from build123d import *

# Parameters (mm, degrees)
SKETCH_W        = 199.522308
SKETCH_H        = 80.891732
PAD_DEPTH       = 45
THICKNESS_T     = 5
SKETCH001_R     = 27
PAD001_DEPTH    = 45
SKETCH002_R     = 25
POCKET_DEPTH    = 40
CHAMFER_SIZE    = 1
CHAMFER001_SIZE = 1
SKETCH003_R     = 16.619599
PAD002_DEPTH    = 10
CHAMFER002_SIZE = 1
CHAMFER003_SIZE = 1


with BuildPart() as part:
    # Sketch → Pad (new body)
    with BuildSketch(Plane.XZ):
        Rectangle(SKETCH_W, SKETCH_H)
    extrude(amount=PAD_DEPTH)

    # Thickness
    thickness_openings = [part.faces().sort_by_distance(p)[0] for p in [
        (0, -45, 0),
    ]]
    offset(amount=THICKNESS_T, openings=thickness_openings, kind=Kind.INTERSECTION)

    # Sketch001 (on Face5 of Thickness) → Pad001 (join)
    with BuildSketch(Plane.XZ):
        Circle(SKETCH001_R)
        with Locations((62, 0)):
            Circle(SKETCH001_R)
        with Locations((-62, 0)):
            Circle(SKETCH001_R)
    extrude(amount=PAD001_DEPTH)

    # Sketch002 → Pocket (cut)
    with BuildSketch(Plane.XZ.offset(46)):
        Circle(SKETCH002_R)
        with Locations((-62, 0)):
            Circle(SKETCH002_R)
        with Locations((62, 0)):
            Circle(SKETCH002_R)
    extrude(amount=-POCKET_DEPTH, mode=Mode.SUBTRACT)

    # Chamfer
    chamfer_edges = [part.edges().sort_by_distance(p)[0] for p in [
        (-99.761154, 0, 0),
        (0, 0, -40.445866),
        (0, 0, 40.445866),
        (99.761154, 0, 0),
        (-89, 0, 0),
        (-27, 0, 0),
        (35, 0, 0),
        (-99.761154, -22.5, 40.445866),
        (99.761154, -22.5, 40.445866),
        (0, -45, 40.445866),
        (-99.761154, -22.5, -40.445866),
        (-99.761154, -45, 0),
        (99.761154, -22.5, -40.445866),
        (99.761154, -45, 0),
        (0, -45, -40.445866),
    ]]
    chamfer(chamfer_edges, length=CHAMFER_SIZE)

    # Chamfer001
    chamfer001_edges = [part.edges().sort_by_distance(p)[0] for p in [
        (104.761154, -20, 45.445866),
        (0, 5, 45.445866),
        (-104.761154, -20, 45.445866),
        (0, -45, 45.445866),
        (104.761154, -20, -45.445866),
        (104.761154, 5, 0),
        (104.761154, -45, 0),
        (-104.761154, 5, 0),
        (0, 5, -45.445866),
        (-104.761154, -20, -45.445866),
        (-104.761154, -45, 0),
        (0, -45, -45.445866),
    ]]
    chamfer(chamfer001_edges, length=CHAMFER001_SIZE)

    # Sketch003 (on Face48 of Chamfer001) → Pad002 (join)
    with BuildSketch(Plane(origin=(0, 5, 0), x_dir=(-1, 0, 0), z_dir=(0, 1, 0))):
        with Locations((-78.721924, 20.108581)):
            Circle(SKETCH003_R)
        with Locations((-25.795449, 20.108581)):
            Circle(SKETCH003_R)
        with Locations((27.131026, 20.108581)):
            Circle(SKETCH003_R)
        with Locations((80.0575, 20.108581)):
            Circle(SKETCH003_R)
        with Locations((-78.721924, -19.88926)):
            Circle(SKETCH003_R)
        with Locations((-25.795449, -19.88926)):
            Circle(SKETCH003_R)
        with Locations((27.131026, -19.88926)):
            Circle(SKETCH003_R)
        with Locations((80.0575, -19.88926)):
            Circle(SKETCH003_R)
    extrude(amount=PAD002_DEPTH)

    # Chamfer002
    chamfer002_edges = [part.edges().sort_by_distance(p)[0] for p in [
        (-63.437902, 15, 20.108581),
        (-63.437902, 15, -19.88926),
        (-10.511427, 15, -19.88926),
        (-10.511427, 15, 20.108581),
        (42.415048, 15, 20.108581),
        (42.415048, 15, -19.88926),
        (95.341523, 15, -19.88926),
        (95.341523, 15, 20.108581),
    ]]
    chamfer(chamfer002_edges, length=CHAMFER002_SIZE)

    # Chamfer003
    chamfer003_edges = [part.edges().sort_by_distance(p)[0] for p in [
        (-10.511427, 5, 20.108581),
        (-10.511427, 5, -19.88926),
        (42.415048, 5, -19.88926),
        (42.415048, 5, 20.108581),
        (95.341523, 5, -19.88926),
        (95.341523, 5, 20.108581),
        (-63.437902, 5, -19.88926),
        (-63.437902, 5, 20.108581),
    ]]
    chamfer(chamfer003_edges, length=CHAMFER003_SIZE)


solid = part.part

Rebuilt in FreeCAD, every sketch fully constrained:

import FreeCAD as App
import Part
import Sketcher
from FreeCAD import Vector
Q = App.Units.Quantity


def edges_at(feature, points):
    """Names of the edges that pass closest to the given points."""
    edges = feature.Shape.Edges
    near = lambda p: min(range(len(edges)), key=lambda i: edges[i].distToShape(Part.Vertex(*p))[0])
    return sorted({f"Edge{near(p) + 1}" for p in points})


def faces_at(feature, points):
    """Names of the faces that lie closest to the given points."""
    faces = feature.Shape.Faces
    near = lambda p: min(range(len(faces)), key=lambda i: faces[i].distToShape(Part.Vertex(*p))[0])
    return sorted({f"Face{near(p) + 1}" for p in points})


def add_polygon(sketch, points):
    """Adds a closed chain of lines whose ends are joined by coincident constraints."""
    first, n = sketch.GeometryCount, len(points)
    for a, b in zip(points, points[1:] + points[:1]):
        sketch.addGeometry(Part.LineSegment(App.Vector(*a, 0), App.Vector(*b, 0)), False)
    for i in range(n):
        sketch.addConstraint(Sketcher.Constraint("Coincident", first + i, 2, first + (i + 1) % n, 1))

doc = App.newDocument("Part")
params = doc.addObject("Spreadsheet::Sheet", "Params")
for row, (alias, value) in enumerate([
    ("pad1_length", "45 mm"),
    ("thickness_wall", "5 mm"),
    ("sketch2_diameter", "54 mm"),
    ("pad2_length", "45 mm"),
    ("sketch3_diameter", "50 mm"),
    ("pocket1_length", "40 mm"),
    ("chamfer_size", "1 mm"),
    ("chamfer2_size", "1 mm"),
    ("pad3_length", "10 mm"),
    ("chamfer3_size", "1 mm"),
    ("chamfer4_size", "1 mm"),
], start=1):
    params.set(f"A{row}", alias)
    params.set(f"B{row}", "=" + value)
    params.setAlias(f"B{row}", alias)

body = doc.addObject("PartDesign::Body", "Body")

# Sketch on XZ plane
sketch1 = body.newObject("Sketcher::SketchObject", "Sketch")
sketch1.AttachmentSupport = (doc.getObject("XZ_Plane"), [""])
sketch1.MapMode = "FlatFace"
add_polygon(sketch1, [(-99.761154, 40.445866), (-99.761154, -40.445866), (99.761154, -40.445866), (99.761154, 40.445866)])  # lines 0-3
sketch1.addConstraint([
    Sketcher.Constraint("Vertical", 0),
    Sketcher.Constraint("Horizontal", 1),
    Sketcher.Constraint("Vertical", 2),
    Sketcher.Constraint("Horizontal", 3),
    Sketcher.Constraint("Symmetric", 0, 2, 2, 2, -1, 1),
    Sketcher.Constraint("DistanceX", 1, 1, 1, 2, Q("199.522308 mm")),
    Sketcher.Constraint("DistanceY", 0, 2, 0, 1, Q("80.891732 mm")),
])
pad1 = body.newObject("PartDesign::Pad", "Pad")
pad1.Profile = sketch1
pad1.setExpression("Length", "Params.pad1_length")
doc.recompute()

thickness = body.newObject("PartDesign::Thickness", "Thickness")
thickness.Base = (pad1, faces_at(pad1, [(0, -45, 0)]))
thickness.setExpression("Value", "Params.thickness_wall")
thickness.Reversed = False
thickness.Join = "Intersection"

# Sketch on XZ plane
sketch2 = body.newObject("Sketcher::SketchObject", "Sketch001")
sketch2.AttachmentSupport = (doc.getObject("XZ_Plane"), [""])
sketch2.MapMode = "FlatFace"
sketch2.addGeometry([
    Part.Circle(Vector(0, 0, 0), Vector(0, 0, 1), 27),
    Part.Circle(Vector(62, 0, 0), Vector(0, 0, 1), 27),
    Part.Circle(Vector(-62, 0, 0), Vector(0, 0, 1), 27),
], False)
sketch2.addConstraint([
    Sketcher.Constraint("Coincident", 0, 3, -1, 1),
    Sketcher.Constraint("Equal", 0, 1),
    Sketcher.Constraint("Equal", 1, 2),
    Sketcher.Constraint("Symmetric", 1, 3, 2, 3, -1, 1),
    Sketcher.Constraint("PointOnObject", 1, 3, -1),
    Sketcher.Constraint("Diameter", 0, Q("54 mm")),
    Sketcher.Constraint("DistanceX", -1, 1, 1, 3, Q("62 mm")),
])
sketch2.setExpression("Constraints[5]", "Params.sketch2_diameter")
pad2 = body.newObject("PartDesign::Pad", "Pad001")
pad2.Profile = sketch2
pad2.setExpression("Length", "Params.pad2_length")

# Sketch on XZ plane
sketch3 = body.newObject("Sketcher::SketchObject", "Sketch002")
sketch3.AttachmentSupport = (doc.getObject("XZ_Plane"), [""])
sketch3.MapMode = "FlatFace"
sketch3.AttachmentOffset = App.Placement(Vector(0, 0, 46), App.Rotation())
sketch3.addGeometry([
    Part.Circle(Vector(0, 0, 0), Vector(0, 0, 1), 25),
    Part.Circle(Vector(-62, 0, 0), Vector(0, 0, 1), 25),
    Part.Circle(Vector(62, 0, 0), Vector(0, 0, 1), 25),
], False)
sketch3.addConstraint([
    Sketcher.Constraint("Coincident", 0, 3, -1, 1),
    Sketcher.Constraint("Equal", 0, 1),
    Sketcher.Constraint("Equal", 1, 2),
    Sketcher.Constraint("Symmetric", 1, 3, 2, 3, -1, 1),
    Sketcher.Constraint("PointOnObject", 1, 3, -1),
    Sketcher.Constraint("Diameter", 0, Q("50 mm")),
    Sketcher.Constraint("DistanceX", 1, 3, -1, 1, Q("62 mm")),
])
sketch3.setExpression("Constraints[5]", "Params.sketch3_diameter")
pocket1 = body.newObject("PartDesign::Pocket", "Pocket")
pocket1.Profile = sketch3
pocket1.setExpression("Length", "Params.pocket1_length")
doc.recompute()

chamfer = body.newObject("PartDesign::Chamfer", "Chamfer")
chamfer.Base = (pocket1, edges_at(pocket1, [
    (-99.761, 0, 0),
    (0, 0, -40.446),
    (0, 0, 40.446),
    (99.761, 0, 0),
    (-89, 0, 0),
    (-27, 0, 0),
    (35, 0, 0),
    (-99.761, -22.5, 40.446),
    (99.761, -22.5, 40.446),
    (0, -45, 40.446),
    (-99.761, -22.5, -40.446),
    (-99.761, -45, 0),
    (99.761, -22.5, -40.446),
    (99.761, -45, 0),
    (0, -45, -40.446),
]))
chamfer.setExpression("Size", "Params.chamfer_size")
doc.recompute()

chamfer2 = body.newObject("PartDesign::Chamfer", "Chamfer001")
chamfer2.Base = (chamfer, edges_at(chamfer, [
    (104.761, -20, 45.446),
    (0, 5, 45.446),
    (-104.761, -20, 45.446),
    (0, -45, 45.446),
    (104.761, -20, -45.446),
    (104.761, 5, 0),
    (104.761, -45, 0),
    (-104.761, 5, 0),
    (0, 5, -45.446),
    (-104.761, -20, -45.446),
    (-104.761, -45, 0),
    (0, -45, -45.446),
]))
chamfer2.setExpression("Size", "Params.chamfer2_size")

# Sketch on XZ plane
sketch4 = body.newObject("Sketcher::SketchObject", "Sketch003")
sketch4.AttachmentSupport = (doc.getObject("XZ_Plane"), [""])
sketch4.MapMode = "FlatFace"
sketch4.AttachmentOffset = App.Placement(Vector(0, 0, -5), App.Rotation())
sketch4.addGeometry([
    Part.Circle(Vector(78.721924, 20.108581, 0), Vector(0, 0, 1), 16.619599),  # 0
    Part.Circle(Vector(25.795449, 20.108581, 0), Vector(0, 0, 1), 16.619599),  # 1
    Part.Circle(Vector(-27.131026, 20.108581, 0), Vector(0, 0, 1), 16.619599),  # 2
    Part.Circle(Vector(-80.0575, 20.108581, 0), Vector(0, 0, 1), 16.619599),  # 3
    Part.Circle(Vector(78.721924, -19.88926, 0), Vector(0, 0, 1), 16.619599),  # 4
    Part.Circle(Vector(25.795449, -19.88926, 0), Vector(0, 0, 1), 16.619599),  # 5
    Part.Circle(Vector(-27.131026, -19.88926, 0), Vector(0, 0, 1), 16.619599),  # 6
    Part.Circle(Vector(-80.0575, -19.88926, 0), Vector(0, 0, 1), 16.619599),  # 7
], False)
sketch4.addConstraint([
    Sketcher.Constraint("Equal", 0, 1),
    Sketcher.Constraint("Equal", 1, 2),
    Sketcher.Constraint("Equal", 2, 3),
    Sketcher.Constraint("Equal", 3, 4),
    Sketcher.Constraint("Equal", 4, 5),
    Sketcher.Constraint("Equal", 5, 6),
    Sketcher.Constraint("Equal", 6, 7),
    Sketcher.Constraint("Horizontal", 0, 3, 1, 3),
    Sketcher.Constraint("Horizontal", 1, 3, 2, 3),
    Sketcher.Constraint("Horizontal", 2, 3, 3, 3),
    Sketcher.Constraint("Horizontal", 4, 3, 5, 3),
    Sketcher.Constraint("Horizontal", 5, 3, 6, 3),
    Sketcher.Constraint("Horizontal", 6, 3, 7, 3),
    Sketcher.Constraint("Vertical", 0, 3, 4, 3),
    Sketcher.Constraint("Vertical", 1, 3, 5, 3),
    Sketcher.Constraint("Vertical", 2, 3, 6, 3),
    Sketcher.Constraint("Vertical", 3, 3, 7, 3),
    Sketcher.Constraint("Diameter", 0, Q("33.239198 mm")),
    Sketcher.Constraint("DistanceX", 3, 3, -1, 1, Q("80.0575 mm")),
    Sketcher.Constraint("DistanceY", -1, 1, 0, 3, Q("20.108581 mm")),
    Sketcher.Constraint("DistanceX", -1, 1, 1, 3, Q("25.795449 mm")),
    Sketcher.Constraint("DistanceY", 4, 3, -1, 1, Q("19.88926 mm")),
    Sketcher.Constraint("DistanceX", 2, 3, 0, 3, Q("105.85295 mm")),
    Sketcher.Constraint("DistanceX", -1, 1, 0, 3, Q("78.721924 mm")),
])
pad3 = body.newObject("PartDesign::Pad", "Pad002")
pad3.Profile = sketch4
pad3.setExpression("Length", "Params.pad3_length")
pad3.Reversed = True
doc.recompute()

chamfer3 = body.newObject("PartDesign::Chamfer", "Chamfer002")
chamfer3.Base = (pad3, edges_at(pad3, [
    (-63.438, 15, 20.109),
    (-63.438, 15, -19.889),
    (-10.511, 15, -19.889),
    (-10.511, 15, 20.109),
    (42.415, 15, 20.109),
    (42.415, 15, -19.889),
    (95.342, 15, -19.889),
    (95.342, 15, 20.109),
]))
chamfer3.setExpression("Size", "Params.chamfer3_size")
doc.recompute()

chamfer4 = body.newObject("PartDesign::Chamfer", "Chamfer003")
chamfer4.Base = (chamfer3, edges_at(chamfer3, [
    (-10.511, 5, 20.109),
    (-10.511, 5, -19.889),
    (42.415, 5, -19.889),
    (42.415, 5, 20.109),
    (95.342, 5, -19.889),
    (95.342, 5, 20.109),
    (-63.438, 5, -19.889),
    (-63.438, 5, 20.109),
]))
chamfer4.setExpression("Size", "Params.chamfer4_size")

doc.recompute()
